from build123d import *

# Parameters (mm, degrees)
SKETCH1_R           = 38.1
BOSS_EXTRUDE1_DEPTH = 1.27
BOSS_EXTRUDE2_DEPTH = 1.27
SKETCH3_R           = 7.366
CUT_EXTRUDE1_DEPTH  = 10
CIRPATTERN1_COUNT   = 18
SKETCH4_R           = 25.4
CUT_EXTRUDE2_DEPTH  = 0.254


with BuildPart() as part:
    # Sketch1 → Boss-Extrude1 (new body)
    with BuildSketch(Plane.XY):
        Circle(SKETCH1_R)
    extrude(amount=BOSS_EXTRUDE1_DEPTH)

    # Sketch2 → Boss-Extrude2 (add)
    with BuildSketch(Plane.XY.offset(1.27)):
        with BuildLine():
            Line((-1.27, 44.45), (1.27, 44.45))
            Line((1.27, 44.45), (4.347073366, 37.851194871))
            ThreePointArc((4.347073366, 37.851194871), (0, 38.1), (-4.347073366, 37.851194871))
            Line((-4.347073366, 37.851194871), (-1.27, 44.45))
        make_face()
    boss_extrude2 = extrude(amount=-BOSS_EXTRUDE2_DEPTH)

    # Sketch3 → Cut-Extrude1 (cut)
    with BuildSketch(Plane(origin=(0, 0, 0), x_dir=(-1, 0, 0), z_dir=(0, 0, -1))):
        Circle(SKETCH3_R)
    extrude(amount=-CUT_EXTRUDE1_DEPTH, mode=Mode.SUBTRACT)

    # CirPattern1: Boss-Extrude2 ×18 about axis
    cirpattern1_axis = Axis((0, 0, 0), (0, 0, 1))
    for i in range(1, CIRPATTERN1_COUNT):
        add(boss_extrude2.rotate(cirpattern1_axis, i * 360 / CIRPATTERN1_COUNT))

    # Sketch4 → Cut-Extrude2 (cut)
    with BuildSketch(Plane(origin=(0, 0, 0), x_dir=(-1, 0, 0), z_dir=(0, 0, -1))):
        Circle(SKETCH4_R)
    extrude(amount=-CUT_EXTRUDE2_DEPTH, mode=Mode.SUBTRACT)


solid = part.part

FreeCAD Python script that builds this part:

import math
import FreeCAD as App
import Part
import Sketcher
from FreeCAD import Vector
Q = App.Units.Quantity

doc = App.newDocument("Part")
body = doc.addObject("PartDesign::Body", "Body")

sketch1 = body.newObject("Sketcher::SketchObject", "Sketch")
sketch1.AttachmentSupport = (doc.getObject("XY_Plane"), [""])
sketch1.MapMode = "FlatFace"
sketch1.addGeometry(Part.Circle(Vector(0, 0, 0), Vector(0, 0, 1), 38), False)
sketch1.addConstraint(Sketcher.Constraint("Coincident", 0, 3, -1, 1))
sketch1.addConstraint(Sketcher.Constraint("Diameter", 0, Q("3 in")))
pad1 = body.newObject("PartDesign::Pad", "Pad")
pad1.Profile = sketch1
pad1.Length = Q("0.05 in")

sketch2 = body.newObject("Sketcher::SketchObject", "Sketch001")
sketch2.AttachmentSupport = (doc.getObject("XY_Plane"), [""])
sketch2.MapMode = "FlatFace"
sketch2.AttachmentOffset = App.Placement(Vector(0, 0, 0.05 * 25.4), App.Rotation())
sketch2.addGeometry(Part.LineSegment(Vector(1.3, 44.5, 0), Vector(-1.3, 44.5, 0)), False)
sketch2.addGeometry(Part.LineSegment(Vector(-1.3, 44.5, 0), Vector(-4.3, 37.9, 0)), False)
sketch2.addGeometry(Part.ArcOfCircle(Part.Circle(Vector(0, 0, 0), Vector(0, 0, 1), 38.1), math.radians(83.45), math.radians(96.55)), False)
sketch2.addGeometry(Part.LineSegment(Vector(4.3, 37.9, 0), Vector(1.3, 44.5, 0)), False)
sketch2.addConstraint(Sketcher.Constraint("Coincident", 0, 2, 1, 1))
sketch2.addConstraint(Sketcher.Constraint("Coincident", 1, 2, 2, 2))
sketch2.addConstraint(Sketcher.Constraint("Coincident", 2, 1, 3, 1))
sketch2.addConstraint(Sketcher.Constraint("Coincident", 3, 2, 0, 1))
sketch2.addConstraint(Sketcher.Constraint("Horizontal", 0))
sketch2.addConstraint(Sketcher.Constraint("Coincident", 2, 3, -1, 1))
sketch2.addConstraint(Sketcher.Constraint("Horizontal", 1, 2, 2, 1))
sketch2.addConstraint(Sketcher.Constraint("Equal", 1, 3))
sketch2.addConstraint(Sketcher.Constraint("Radius", 2, Q("1.5 in")))
sketch2.addConstraint(Sketcher.Constraint("DistanceX", 0, 2, 0, 1, Q("0.1 in")))
sketch2.addConstraint(Sketcher.Constraint("Angle", 1, Q("-115 deg")))
sketch2.addConstraint(Sketcher.Constraint("DistanceY", -1, 1, 0, 2, Q("1.75 in")))
pad2 = body.newObject("PartDesign::Pad", "Pad001")
pad2.Profile = sketch2
pad2.Length = Q("0.05 in")
pad2.Reversed = True

sketch3 = body.newObject("Sketcher::SketchObject", "Sketch002")
sketch3.AttachmentSupport = (doc.getObject("XY_Plane"), [""])
sketch3.MapMode = "FlatFace"
sketch3.addGeometry(Part.Circle(Vector(0, 0, 0), Vector(0, 0, 1), 7), False)
sketch3.addConstraint(Sketcher.Constraint("Coincident", 0, 3, -1, 1))
sketch3.addConstraint(Sketcher.Constraint("Diameter", 0, Q("0.58 in")))
pocket1 = body.newObject("PartDesign::Pocket", "Pocket")
pocket1.Profile = sketch3
pocket1.Length = 10
pocket1.Reversed = True
doc.recompute()

polarpattern = body.newObject("PartDesign::PolarPattern", "PolarPattern")
polarpattern.Originals = [pad2]
polarpattern.Axis = (doc.getObject("Z_Axis"), [""])
polarpattern.Angle = 360
polarpattern.Occurrences = 18
body.Tip = polarpattern

sketch4 = body.newObject("Sketcher::SketchObject", "Sketch003")
sketch4.AttachmentSupport = (doc.getObject("XY_Plane"), [""])
sketch4.MapMode = "FlatFace"
sketch4.addGeometry(Part.Circle(Vector(0, 0, 0), Vector(0, 0, 1), 25), False)
sketch4.addConstraint(Sketcher.Constraint("Coincident", 0, 3, -1, 1))
sketch4.addConstraint(Sketcher.Constraint("Diameter", 0, Q("2 in")))
pocket2 = body.newObject("PartDesign::Pocket", "Pocket001")
pocket2.Profile = sketch4
pocket2.Length = Q("0.01 in")
pocket2.Reversed = True

doc.recompute()
